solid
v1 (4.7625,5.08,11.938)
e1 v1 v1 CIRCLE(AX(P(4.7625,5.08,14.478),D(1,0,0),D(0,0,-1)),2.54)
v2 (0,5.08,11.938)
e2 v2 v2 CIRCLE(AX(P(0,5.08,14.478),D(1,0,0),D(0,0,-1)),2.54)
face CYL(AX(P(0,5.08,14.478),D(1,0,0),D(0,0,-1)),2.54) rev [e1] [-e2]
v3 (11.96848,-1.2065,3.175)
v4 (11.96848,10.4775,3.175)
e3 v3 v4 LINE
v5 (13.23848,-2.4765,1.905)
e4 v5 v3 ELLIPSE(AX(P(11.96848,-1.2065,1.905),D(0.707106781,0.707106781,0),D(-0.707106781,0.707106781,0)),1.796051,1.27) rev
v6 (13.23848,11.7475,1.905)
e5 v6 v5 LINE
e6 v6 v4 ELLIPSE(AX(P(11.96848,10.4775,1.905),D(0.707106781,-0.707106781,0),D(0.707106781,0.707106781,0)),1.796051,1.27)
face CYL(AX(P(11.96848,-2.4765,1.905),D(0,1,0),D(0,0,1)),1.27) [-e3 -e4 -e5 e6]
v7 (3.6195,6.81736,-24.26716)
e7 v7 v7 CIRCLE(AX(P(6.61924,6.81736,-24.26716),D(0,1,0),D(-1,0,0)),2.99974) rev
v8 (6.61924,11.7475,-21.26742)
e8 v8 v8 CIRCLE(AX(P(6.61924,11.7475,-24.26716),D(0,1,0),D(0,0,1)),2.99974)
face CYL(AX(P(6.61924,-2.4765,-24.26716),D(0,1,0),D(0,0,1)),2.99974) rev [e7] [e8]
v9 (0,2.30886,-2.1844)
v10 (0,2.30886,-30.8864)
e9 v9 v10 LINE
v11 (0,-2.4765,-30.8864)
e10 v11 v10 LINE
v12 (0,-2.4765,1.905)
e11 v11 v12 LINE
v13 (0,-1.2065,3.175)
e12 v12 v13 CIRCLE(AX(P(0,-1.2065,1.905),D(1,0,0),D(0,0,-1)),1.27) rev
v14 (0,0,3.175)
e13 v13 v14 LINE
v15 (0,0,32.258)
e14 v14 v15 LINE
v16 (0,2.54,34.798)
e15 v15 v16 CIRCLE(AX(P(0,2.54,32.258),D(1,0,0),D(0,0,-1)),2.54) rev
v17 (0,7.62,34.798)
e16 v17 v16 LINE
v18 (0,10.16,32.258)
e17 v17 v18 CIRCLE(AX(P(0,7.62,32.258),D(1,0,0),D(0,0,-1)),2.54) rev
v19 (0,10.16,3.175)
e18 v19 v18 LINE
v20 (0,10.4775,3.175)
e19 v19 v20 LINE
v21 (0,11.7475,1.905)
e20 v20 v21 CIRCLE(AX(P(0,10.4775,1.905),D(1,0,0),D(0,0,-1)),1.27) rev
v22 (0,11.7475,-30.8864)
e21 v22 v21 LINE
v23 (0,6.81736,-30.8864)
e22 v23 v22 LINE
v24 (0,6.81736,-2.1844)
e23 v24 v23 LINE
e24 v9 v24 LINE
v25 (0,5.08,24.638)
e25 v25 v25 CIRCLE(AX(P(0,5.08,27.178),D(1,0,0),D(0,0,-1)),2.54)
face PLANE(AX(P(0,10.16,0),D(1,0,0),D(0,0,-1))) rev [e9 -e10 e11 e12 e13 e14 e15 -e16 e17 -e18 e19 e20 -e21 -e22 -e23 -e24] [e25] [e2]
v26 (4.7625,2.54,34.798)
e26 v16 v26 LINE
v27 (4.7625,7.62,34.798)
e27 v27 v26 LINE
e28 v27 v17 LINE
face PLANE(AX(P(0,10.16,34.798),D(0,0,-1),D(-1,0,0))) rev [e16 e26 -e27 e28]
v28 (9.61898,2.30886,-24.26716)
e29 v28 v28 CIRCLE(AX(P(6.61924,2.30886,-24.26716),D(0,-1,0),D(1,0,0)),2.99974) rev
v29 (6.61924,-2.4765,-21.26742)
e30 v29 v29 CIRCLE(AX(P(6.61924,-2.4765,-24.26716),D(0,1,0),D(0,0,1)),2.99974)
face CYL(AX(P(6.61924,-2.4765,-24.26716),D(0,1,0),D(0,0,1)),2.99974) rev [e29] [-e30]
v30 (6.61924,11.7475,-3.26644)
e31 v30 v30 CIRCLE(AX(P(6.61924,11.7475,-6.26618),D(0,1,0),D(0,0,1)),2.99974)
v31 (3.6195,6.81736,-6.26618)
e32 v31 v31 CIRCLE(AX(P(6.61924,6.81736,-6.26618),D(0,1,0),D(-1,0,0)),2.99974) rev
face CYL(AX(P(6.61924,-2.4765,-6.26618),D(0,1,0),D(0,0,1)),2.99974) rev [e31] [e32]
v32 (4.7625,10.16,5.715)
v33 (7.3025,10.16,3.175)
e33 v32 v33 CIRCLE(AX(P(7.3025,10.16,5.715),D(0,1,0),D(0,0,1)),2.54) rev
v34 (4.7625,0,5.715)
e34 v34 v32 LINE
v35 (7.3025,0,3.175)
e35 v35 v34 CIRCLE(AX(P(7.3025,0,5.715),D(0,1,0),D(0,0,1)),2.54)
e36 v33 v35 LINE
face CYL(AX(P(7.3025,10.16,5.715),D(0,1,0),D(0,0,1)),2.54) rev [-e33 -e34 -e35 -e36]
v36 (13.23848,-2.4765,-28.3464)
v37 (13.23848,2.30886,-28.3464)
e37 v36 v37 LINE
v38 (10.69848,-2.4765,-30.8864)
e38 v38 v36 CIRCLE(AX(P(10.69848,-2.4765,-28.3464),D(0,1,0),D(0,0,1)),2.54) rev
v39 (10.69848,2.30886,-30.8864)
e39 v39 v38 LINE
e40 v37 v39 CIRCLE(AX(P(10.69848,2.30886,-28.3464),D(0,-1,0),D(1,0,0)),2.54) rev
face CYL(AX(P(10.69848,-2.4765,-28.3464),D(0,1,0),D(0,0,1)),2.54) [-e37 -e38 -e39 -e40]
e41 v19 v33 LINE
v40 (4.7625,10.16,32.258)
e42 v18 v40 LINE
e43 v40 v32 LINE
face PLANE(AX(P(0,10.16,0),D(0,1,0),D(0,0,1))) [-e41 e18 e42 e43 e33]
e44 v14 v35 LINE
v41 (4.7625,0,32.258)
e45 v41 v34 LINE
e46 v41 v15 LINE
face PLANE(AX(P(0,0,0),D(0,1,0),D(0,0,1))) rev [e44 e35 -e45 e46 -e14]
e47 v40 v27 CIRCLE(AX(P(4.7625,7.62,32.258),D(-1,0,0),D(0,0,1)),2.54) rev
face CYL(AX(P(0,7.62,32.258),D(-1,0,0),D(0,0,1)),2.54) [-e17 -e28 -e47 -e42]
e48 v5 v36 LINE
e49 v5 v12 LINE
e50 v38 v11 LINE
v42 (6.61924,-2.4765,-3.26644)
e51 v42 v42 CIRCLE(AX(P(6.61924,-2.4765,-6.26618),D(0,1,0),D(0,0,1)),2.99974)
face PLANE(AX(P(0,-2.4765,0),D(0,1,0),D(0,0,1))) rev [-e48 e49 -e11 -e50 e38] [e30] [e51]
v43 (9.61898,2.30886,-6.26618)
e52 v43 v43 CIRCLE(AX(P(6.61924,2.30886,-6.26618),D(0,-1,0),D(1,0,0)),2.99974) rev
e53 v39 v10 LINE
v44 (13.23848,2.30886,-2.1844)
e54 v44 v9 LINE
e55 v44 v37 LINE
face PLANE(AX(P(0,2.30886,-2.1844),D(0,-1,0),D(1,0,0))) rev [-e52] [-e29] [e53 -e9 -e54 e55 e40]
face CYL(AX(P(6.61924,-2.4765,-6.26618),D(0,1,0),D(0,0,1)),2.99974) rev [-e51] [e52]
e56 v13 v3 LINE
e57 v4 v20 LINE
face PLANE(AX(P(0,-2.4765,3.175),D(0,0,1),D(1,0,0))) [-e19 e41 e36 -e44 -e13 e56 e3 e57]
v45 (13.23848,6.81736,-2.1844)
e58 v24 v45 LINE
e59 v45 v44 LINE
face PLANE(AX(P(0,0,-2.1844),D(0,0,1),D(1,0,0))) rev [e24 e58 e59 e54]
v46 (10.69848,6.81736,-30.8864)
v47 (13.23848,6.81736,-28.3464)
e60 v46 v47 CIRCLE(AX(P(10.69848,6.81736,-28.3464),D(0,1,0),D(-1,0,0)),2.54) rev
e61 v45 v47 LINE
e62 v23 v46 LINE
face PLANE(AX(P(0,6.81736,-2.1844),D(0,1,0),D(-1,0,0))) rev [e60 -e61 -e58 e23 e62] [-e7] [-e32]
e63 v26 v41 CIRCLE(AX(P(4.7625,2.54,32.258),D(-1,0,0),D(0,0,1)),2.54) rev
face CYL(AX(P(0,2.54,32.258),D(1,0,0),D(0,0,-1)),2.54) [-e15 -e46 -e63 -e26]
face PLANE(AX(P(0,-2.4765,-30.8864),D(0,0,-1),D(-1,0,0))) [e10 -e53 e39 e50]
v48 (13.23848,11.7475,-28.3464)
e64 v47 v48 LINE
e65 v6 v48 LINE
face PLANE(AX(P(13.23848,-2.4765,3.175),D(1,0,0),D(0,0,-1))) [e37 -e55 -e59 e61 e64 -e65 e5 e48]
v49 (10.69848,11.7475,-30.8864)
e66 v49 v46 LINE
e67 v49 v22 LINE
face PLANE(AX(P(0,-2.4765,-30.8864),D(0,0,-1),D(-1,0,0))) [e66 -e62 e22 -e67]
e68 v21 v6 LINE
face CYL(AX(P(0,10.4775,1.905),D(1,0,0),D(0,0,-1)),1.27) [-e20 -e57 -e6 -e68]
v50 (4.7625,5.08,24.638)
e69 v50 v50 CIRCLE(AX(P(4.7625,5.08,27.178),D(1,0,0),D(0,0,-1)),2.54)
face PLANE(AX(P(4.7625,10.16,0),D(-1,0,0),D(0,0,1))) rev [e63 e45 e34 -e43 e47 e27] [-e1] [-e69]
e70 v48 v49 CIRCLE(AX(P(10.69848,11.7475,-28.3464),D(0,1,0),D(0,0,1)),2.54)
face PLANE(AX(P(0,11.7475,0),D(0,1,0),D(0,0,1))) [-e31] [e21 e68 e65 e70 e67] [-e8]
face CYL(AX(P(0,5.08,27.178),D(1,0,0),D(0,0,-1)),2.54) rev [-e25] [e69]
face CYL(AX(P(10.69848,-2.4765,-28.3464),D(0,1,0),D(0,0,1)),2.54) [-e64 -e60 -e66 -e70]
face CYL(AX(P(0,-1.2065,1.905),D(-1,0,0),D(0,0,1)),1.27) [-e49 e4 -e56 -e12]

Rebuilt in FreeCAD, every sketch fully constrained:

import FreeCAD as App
import Part
import Sketcher
Q = App.Units.Quantity


def edges_at(feature, points):
    """Names of the edges that pass closest to the given points."""
    edges = feature.Shape.Edges
    near = lambda p: min(range(len(edges)), key=lambda i: edges[i].distToShape(Part.Vertex(*p))[0])
    return sorted({f"Edge{near(p) + 1}" for p in points})

doc = App.newDocument("Part")
params = doc.addObject("Spreadsheet::Sheet", "Params")
for row, (alias, value) in enumerate([
    ("sketch1_height", "1.37 in"),
    ("sketch1_width", "0.1875 in"),
    ("pad1_length", "0.4 in"),
    ("sketch2_diameter", "0.2 in"),
    ("sketch3_height", "1.341 in"),
    ("pad2_length", "0.2625 in"),
    ("pad2_length2", "0.2975 in"),
    ("pocket2_length", "1.13 in"),
    ("fillet_radius", "0.1 in"),
    ("fillet2_radius", "0.05 in"),
], start=1):
    params.set(f"A{row}", alias)
    params.set(f"B{row}", "=" + value)
    params.setAlias(f"B{row}", alias)

body = doc.addObject("PartDesign::Body", "Body")

# Sketch on XZ plane
sketch1 = doc.addObject("Sketcher::SketchObject", "Sketch")
body.addObject(sketch1)
sketch1.AttachmentSupport = (doc.XZ_Plane, [""])
sketch1.MapMode = "FlatFace"
sketch1.addGeometry([
    Part.LineSegment(App.Vector(0, 0, 0), App.Vector(0, 34.8, 0)),
    Part.LineSegment(App.Vector(0, 34.8, 0), App.Vector(4.8, 34.8, 0)),
    Part.LineSegment(App.Vector(4.8, 34.8, 0), App.Vector(4.8, 0, 0)),
    Part.LineSegment(App.Vector(4.8, 0, 0), App.Vector(0, 0, 0)),
], False)
sketch1.addConstraint([
    Sketcher.Constraint("Coincident", 0, 2, 1, 1),
    Sketcher.Constraint("Coincident", 1, 2, 2, 1),
    Sketcher.Constraint("Coincident", 2, 2, 3, 1),
    Sketcher.Constraint("Coincident", 3, 2, 0, 1),
    Sketcher.Constraint("Vertical", 0),
    Sketcher.Constraint("Horizontal", 1),
    Sketcher.Constraint("Vertical", 2),
    Sketcher.Constraint("Horizontal", 3),
    Sketcher.Constraint("Coincident", 3, 2, -1, 1),
    Sketcher.Constraint("DistanceY", 0, 1, 0, 2, Q("1.37 in")),
    Sketcher.Constraint("DistanceX", 1, 1, 1, 2, Q("0.1875 in")),
])
sketch1.setExpression("Constraints[9]", "Params.sketch1_height")
sketch1.setExpression("Constraints[10]", "Params.sketch1_width")
pad1 = doc.addObject("PartDesign::Pad", "Pad")
body.addObject(pad1)
pad1.Profile = sketch1
pad1.setExpression("Length", "Params.pad1_length")
pad1.Reversed = True

# Sketch on YZ plane
sketch2 = doc.addObject("Sketcher::SketchObject", "Sketch001")
body.addObject(sketch2)
sketch2.AttachmentSupport = (doc.YZ_Plane, [""])
sketch2.MapMode = "FlatFace"
sketch2.AttachmentOffset = App.Placement(App.Vector(0, 0, 0.1875 * 25.4), App.Rotation())
sketch2.addGeometry([
    Part.Circle(App.Vector(5.1, 27.2, 0), App.Vector(0, 0, 1), 2.5),
    Part.Circle(App.Vector(5.1, 14.5, 0), App.Vector(0, 0, 1), 2.5),
], False)
sketch2.addConstraint([
    Sketcher.Constraint("Equal", 0, 1),
    Sketcher.Constraint("Vertical", 0, 3, 1, 3),
    Sketcher.Constraint("Diameter", 0, Q("0.2 in")),
    Sketcher.Constraint("DistanceX", -1, 1, 0, 3, Q("0.2 in")),
    Sketcher.Constraint("DistanceY", 1, 3, 0, 3, Q("0.5 in")),
    Sketcher.Constraint("DistanceY", -1, 1, 0, 3, Q("1.07 in")),
])
sketch2.setExpression("Constraints[2]", "Params.sketch2_diameter")
pocket1 = doc.addObject("PartDesign::Pocket", "Pocket")
body.addObject(pocket1)
pocket1.Profile = sketch2
pocket1.Type = "ThroughAll"

# Sketch on XZ plane
sketch3 = doc.addObject("Sketcher::SketchObject", "Sketch002")
body.addObject(sketch3)
sketch3.AttachmentSupport = (doc.XZ_Plane, [""])
sketch3.MapMode = "FlatFace"
sketch3.AttachmentOffset = App.Placement(App.Vector(0, 0, -0.2 * 25.4), App.Rotation())
sketch3.addGeometry([
    Part.LineSegment(App.Vector(0, -30.9, 0), App.Vector(0, 3.2, 0)),  # 0
    Part.LineSegment(App.Vector(0, 3.2, 0), App.Vector(13.2, 3.2, 0)),  # 1
    Part.LineSegment(App.Vector(13.2, 3.2, 0), App.Vector(13.2, -30.9, 0)),  # 2
    Part.LineSegment(App.Vector(13.2, -30.9, 0), App.Vector(0, -30.9, 0)),  # 3
    Part.Circle(App.Vector(6.6, -6.3, 0), App.Vector(0, 0, 1), 3),  # 4
    Part.Circle(App.Vector(6.6, -24.3, 0), App.Vector(0, 0, 1), 3),  # 5
], False)
sketch3.addConstraint([
    Sketcher.Constraint("Coincident", 0, 2, 1, 1),
    Sketcher.Constraint("Coincident", 1, 2, 2, 1),
    Sketcher.Constraint("Coincident", 2, 2, 3, 1),
    Sketcher.Constraint("Coincident", 3, 2, 0, 1),
    Sketcher.Constraint("Vertical", 0),
    Sketcher.Constraint("Horizontal", 1),
    Sketcher.Constraint("Vertical", 2),
    Sketcher.Constraint("Horizontal", 3),
    Sketcher.Constraint("Equal", 4, 5),
    Sketcher.Constraint("PointOnObject", 0, 2, -2),
    Sketcher.Constraint("Vertical", 4, 3, 5, 3),
    Sketcher.Constraint("Diameter", 4, Q("0.2362 in")),
    Sketcher.Constraint("DistanceY", 0, 1, 0, 2, Q("1.341 in")),
    Sketcher.Constraint("DistanceX", 1, 1, 1, 2, Q("0.5212 in")),
    Sketcher.Constraint("DistanceY", -1, 1, 0, 2, Q("0.125 in")),
    Sketcher.Constraint("DistanceX", -1, 1, 4, 3, Q("0.2606 in")),
    Sketcher.Constraint("DistanceY", 4, 3, -1, 1, Q("0.2467 in")),
    Sketcher.Constraint("DistanceY", 5, 3, -1, 1, Q("0.9554 in")),
])
sketch3.setExpression("Constraints[12]", "Params.sketch3_height")
pad2 = doc.addObject("PartDesign::Pad", "Pad001")
body.addObject(pad2)
pad2.Profile = sketch3
pad2.Type = "TwoLengths"
pad2.setExpression("Length", "Params.pad2_length")
pad2.setExpression("Length2", "Params.pad2_length2")
pad2.Reversed = True

# Sketch on XY plane
sketch4 = doc.addObject("Sketcher::SketchObject", "Sketch003")
body.addObject(sketch4)
sketch4.AttachmentSupport = (doc.XY_Plane, [""])
sketch4.MapMode = "FlatFace"
sketch4.AttachmentOffset = App.Placement(App.Vector(0, 0, -1.216 * 25.4), App.Rotation())
sketch4.addGeometry([
    Part.LineSegment(App.Vector(13.2, 6.8, 0), App.Vector(13.2, 2.3, 0)),
    Part.LineSegment(App.Vector(13.2, 2.3, 0), App.Vector(0, 2.3, 0)),
    Part.LineSegment(App.Vector(0, 2.3, 0), App.Vector(0, 6.8, 0)),
    Part.LineSegment(App.Vector(0, 6.8, 0), App.Vector(13.2, 6.8, 0)),
], False)
sketch4.addConstraint([
    Sketcher.Constraint("Coincident", 0, 2, 1, 1),
    Sketcher.Constraint("Coincident", 1, 2, 2, 1),
    Sketcher.Constraint("Coincident", 2, 2, 3, 1),
    Sketcher.Constraint("Coincident", 3, 2, 0, 1),
    Sketcher.Constraint("Vertical", 0),
    Sketcher.Constraint("Horizontal", 1),
    Sketcher.Constraint("Vertical", 2),
    Sketcher.Constraint("Horizontal", 3),
    Sketcher.Constraint("PointOnObject", 1, 2, -2),
    Sketcher.Constraint("DistanceX", 1, 2, 1, 1, Q("0.5212 in")),
    Sketcher.Constraint("DistanceY", 0, 2, 0, 1, Q("0.1775 in")),
    Sketcher.Constraint("DistanceY", -1, 1, 0, 2, Q("0.0909 in")),
])
pocket2 = doc.addObject("PartDesign::Pocket", "Pocket001")
body.addObject(pocket2)
pocket2.Profile = sketch4
pocket2.setExpression("Length", "Params.pocket2_length")
pocket2.Reversed = True
doc.recompute()

fillet = doc.addObject("PartDesign::Fillet", "Fillet")
body.addObject(fillet)
fillet.Base = (pocket2, edges_at(pocket2, [
    (4.763, 5.08, 3.175),
    (13.238, -0.084, -30.886),
    (13.238, 9.282, -30.886),
    (2.381, 0, 34.798),
    (2.381, 10.16, 34.798),
]))
fillet.setExpression("Radius", "Params.fillet_radius")
doc.recompute()

fillet2 = doc.addObject("PartDesign::Fillet", "Fillet001")
body.addObject(fillet2)
fillet2.Base = (fillet, edges_at(fillet, [(6.619, -2.477, 3.175), (13.238, 4.636, 3.175), (6.619, 11.748, 3.175)]))
fillet2.setExpression("Radius", "Params.fillet2_radius")

doc.recompute()
